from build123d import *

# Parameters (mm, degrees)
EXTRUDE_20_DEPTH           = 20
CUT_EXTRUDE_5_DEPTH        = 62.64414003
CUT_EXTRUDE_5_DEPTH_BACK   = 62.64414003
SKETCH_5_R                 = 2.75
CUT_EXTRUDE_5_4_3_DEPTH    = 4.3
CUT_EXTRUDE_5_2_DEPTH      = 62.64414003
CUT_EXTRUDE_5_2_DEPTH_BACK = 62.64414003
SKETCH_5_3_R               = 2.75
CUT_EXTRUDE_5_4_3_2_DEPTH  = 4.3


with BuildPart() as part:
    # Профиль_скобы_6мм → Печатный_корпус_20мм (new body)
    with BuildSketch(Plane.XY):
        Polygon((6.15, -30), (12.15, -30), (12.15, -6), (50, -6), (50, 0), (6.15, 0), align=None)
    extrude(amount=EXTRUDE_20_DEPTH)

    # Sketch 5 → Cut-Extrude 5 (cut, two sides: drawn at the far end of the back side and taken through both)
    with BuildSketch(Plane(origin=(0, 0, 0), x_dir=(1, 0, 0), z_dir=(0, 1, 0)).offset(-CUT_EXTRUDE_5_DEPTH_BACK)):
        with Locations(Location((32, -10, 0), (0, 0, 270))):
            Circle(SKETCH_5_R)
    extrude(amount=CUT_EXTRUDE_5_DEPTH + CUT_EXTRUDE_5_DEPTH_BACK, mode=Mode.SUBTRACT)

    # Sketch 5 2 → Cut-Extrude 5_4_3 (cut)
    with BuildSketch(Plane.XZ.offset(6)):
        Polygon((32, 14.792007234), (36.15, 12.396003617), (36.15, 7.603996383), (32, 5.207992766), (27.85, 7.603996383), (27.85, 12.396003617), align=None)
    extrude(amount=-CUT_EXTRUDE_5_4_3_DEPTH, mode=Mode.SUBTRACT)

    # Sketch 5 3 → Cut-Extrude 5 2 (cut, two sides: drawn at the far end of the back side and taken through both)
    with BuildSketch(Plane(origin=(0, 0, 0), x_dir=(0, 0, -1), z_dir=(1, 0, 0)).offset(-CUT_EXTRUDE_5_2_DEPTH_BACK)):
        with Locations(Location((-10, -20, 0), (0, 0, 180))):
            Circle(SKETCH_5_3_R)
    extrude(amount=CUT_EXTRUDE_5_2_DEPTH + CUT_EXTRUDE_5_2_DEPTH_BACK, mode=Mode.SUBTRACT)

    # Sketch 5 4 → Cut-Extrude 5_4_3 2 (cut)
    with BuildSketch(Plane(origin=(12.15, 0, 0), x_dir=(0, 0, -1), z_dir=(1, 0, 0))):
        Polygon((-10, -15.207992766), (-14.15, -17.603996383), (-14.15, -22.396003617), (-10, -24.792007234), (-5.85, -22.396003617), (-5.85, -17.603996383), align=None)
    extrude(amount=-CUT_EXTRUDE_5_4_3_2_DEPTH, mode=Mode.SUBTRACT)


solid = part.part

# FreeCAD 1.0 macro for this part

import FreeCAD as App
import Part
import Sketcher
Q = App.Units.Quantity

doc = App.newDocument("Part")
body = doc.addObject("PartDesign::Body", "Body")

# Sketch on XY plane
sketch1 = doc.addObject("Sketcher::SketchObject", "Sketch")
body.addObject(sketch1)
sketch1.AttachmentSupport = (doc.XY_Plane, [""])
sketch1.MapMode = "FlatFace"
sketch1.addGeometry(Part.LineSegment(App.Vector(6.15, -30, 0), App.Vector(12.15, -30, 0)), False)
sketch1.addGeometry(Part.LineSegment(App.Vector(12.15, -30, 0), App.Vector(12.15, -6, 0)), False)
sketch1.addGeometry(Part.LineSegment(App.Vector(12.15, -6, 0), App.Vector(50, -6, 0)), False)
sketch1.addGeometry(Part.LineSegment(App.Vector(50, -6, 0), App.Vector(50, 0, 0)), False)
sketch1.addGeometry(Part.LineSegment(App.Vector(50, 0, 0), App.Vector(6.15, 0, 0)), False)
sketch1.addGeometry(Part.LineSegment(App.Vector(6.15, 0, 0), App.Vector(6.15, -30, 0)), False)
sketch1.addConstraint(Sketcher.Constraint("Coincident", 0, 2, 1, 1))
sketch1.addConstraint(Sketcher.Constraint("Coincident", 1, 2, 2, 1))
sketch1.addConstraint(Sketcher.Constraint("Coincident", 2, 2, 3, 1))
sketch1.addConstraint(Sketcher.Constraint("Coincident", 3, 2, 4, 1))
sketch1.addConstraint(Sketcher.Constraint("Coincident", 4, 2, 5, 1))
sketch1.addConstraint(Sketcher.Constraint("Coincident", 5, 2, 0, 1))
sketch1.addConstraint(Sketcher.Constraint("Horizontal", 0))
sketch1.addConstraint(Sketcher.Constraint("Vertical", 1))
sketch1.addConstraint(Sketcher.Constraint("Horizontal", 2))
sketch1.addConstraint(Sketcher.Constraint("Vertical", 3))
sketch1.addConstraint(Sketcher.Constraint("Horizontal", 4))
sketch1.addConstraint(Sketcher.Constraint("Vertical", 5))
sketch1.addConstraint(Sketcher.Constraint("PointOnObject", 3, 2, -1))
sketch1.addConstraint(Sketcher.Constraint("Equal", 0, 3))
sketch1.addConstraint(Sketcher.Constraint("DistanceX", 0, 1, 0, 2, Q("6 mm")))
sketch1.addConstraint(Sketcher.Constraint("DistanceY", 1, 1, 1, 2, Q("24 mm")))
sketch1.addConstraint(Sketcher.Constraint("DistanceX", -1, 1, 2, 2, Q("50 mm")))
sketch1.addConstraint(Sketcher.Constraint("DistanceX", 2, 1, 2, 2, Q("37.85 mm")))
pad1 = doc.addObject("PartDesign::Pad", "Pad")
body.addObject(pad1)
pad1.Profile = sketch1
pad1.Length = 20

# Sketch on XZ plane
sketch2 = doc.addObject("Sketcher::SketchObject", "Sketch001")
body.addObject(sketch2)
sketch2.AttachmentSupport = (doc.XZ_Plane, [""])
sketch2.MapMode = "FlatFace"
sketch2.addGeometry(Part.Circle(App.Vector(32, 10, 0), App.Vector(0, 0, 1), 2.75), False)
sketch2.addConstraint(Sketcher.Constraint("Diameter", 0, Q("5.5 mm")))
sketch2.addConstraint(Sketcher.Constraint("DistanceX", -1, 1, 0, 3, Q("32 mm")))
sketch2.addConstraint(Sketcher.Constraint("DistanceY", -1, 1, 0, 3, Q("10 mm")))
pocket1 = doc.addObject("PartDesign::Pocket", "Pocket")
body.addObject(pocket1)
pocket1.Profile = sketch2
pocket1.Type = "ThroughAll"
pocket1.Midplane = True

# Sketch on XZ plane
sketch3 = doc.addObject("Sketcher::SketchObject", "Sketch002")
body.addObject(sketch3)
sketch3.AttachmentSupport = (doc.XZ_Plane, [""])
sketch3.MapMode = "FlatFace"
sketch3.AttachmentOffset = App.Placement(App.Vector(0, 0, 6), App.Rotation())
sketch3.addGeometry(Part.LineSegment(App.Vector(36.15, 12.396004, 0), App.Vector(32, 14.792007, 0)), False)
sketch3.addGeometry(Part.LineSegment(App.Vector(32, 14.792007, 0), App.Vector(27.85, 12.396004, 0)), False)
sketch3.addGeometry(Part.LineSegment(App.Vector(27.85, 12.396004, 0), App.Vector(27.85, 7.603996, 0)), False)
sketch3.addGeometry(Part.LineSegment(App.Vector(27.85, 7.603996, 0), App.Vector(32, 5.207993, 0)), False)
sketch3.addGeometry(Part.LineSegment(App.Vector(32, 5.207993, 0), App.Vector(36.15, 7.603996, 0)), False)
sketch3.addGeometry(Part.LineSegment(App.Vector(36.15, 7.603996, 0), App.Vector(36.15, 12.396004, 0)), False)
sketch3.addConstraint(Sketcher.Constraint("Coincident", 0, 2, 1, 1))
sketch3.addConstraint(Sketcher.Constraint("Coincident", 1, 2, 2, 1))
sketch3.addConstraint(Sketcher.Constraint("Coincident", 2, 2, 3, 1))
sketch3.addConstraint(Sketcher.Constraint("Coincident", 3, 2, 4, 1))
sketch3.addConstraint(Sketcher.Constraint("Coincident", 4, 2, 5, 1))
sketch3.addConstraint(Sketcher.Constraint("Coincident", 5, 2, 0, 1))
sketch3.addConstraint(Sketcher.Constraint("Vertical", 2))
sketch3.addConstraint(Sketcher.Constraint("Vertical", 5))
sketch3.addConstraint(Sketcher.Constraint("Parallel", 0, 3))
sketch3.addConstraint(Sketcher.Constraint("Parallel", 1, 4))
sketch3.addConstraint(Sketcher.Constraint("Horizontal", 2, 2, 4, 2))
sketch3.addConstraint(Sketcher.Constraint("Horizontal", 1, 2, 5, 2))
sketch3.addConstraint(Sketcher.Constraint("Vertical", 0, 2, 3, 2))
sketch3.addConstraint(Sketcher.Constraint("Angle", 0, Q("150 deg")))
sketch3.addConstraint(Sketcher.Constraint("DistanceX", -1, 1, 0, 2, Q("32 mm")))
sketch3.addConstraint(Sketcher.Constraint("DistanceX", 2, 2, 4, 2, Q("8.3 mm")))
sketch3.addConstraint(Sketcher.Constraint("DistanceY", 2, 2, 2, 1, Q("4.792007 mm")))
sketch3.addConstraint(Sketcher.Constraint("DistanceY", -1, 1, 0, 2, Q("14.792007 mm")))
pocket2 = doc.addObject("PartDesign::Pocket", "Pocket001")
body.addObject(pocket2)
pocket2.Profile = sketch3
pocket2.Length = 4.3

# Sketch on YZ plane
sketch4 = doc.addObject("Sketcher::SketchObject", "Sketch003")
body.addObject(sketch4)
sketch4.AttachmentSupport = (doc.YZ_Plane, [""])
sketch4.MapMode = "FlatFace"
sketch4.addGeometry(Part.Circle(App.Vector(-20, 10, 0), App.Vector(0, 0, 1), 2.75), False)
sketch4.addConstraint(Sketcher.Constraint("Diameter", 0, Q("5.5 mm")))
sketch4.addConstraint(Sketcher.Constraint("DistanceX", 0, 3, -1, 1, Q("20 mm")))
sketch4.addConstraint(Sketcher.Constraint("DistanceY", -1, 1, 0, 3, Q("10 mm")))
pocket3 = doc.addObject("PartDesign::Pocket", "Pocket002")
body.addObject(pocket3)
pocket3.Profile = sketch4
pocket3.Type = "ThroughAll"
pocket3.Midplane = True

# Sketch on YZ plane
sketch5 = doc.addObject("Sketcher::SketchObject", "Sketch004")
body.addObject(sketch5)
sketch5.AttachmentSupport = (doc.YZ_Plane, [""])
sketch5.MapMode = "FlatFace"
sketch5.AttachmentOffset = App.Placement(App.Vector(0, 0, 12.15), App.Rotation())
sketch5.addGeometry(Part.LineSegment(App.Vector(-15.207993, 10, 0), App.Vector(-17.603996, 14.15, 0)), False)
sketch5.addGeometry(Part.LineSegment(App.Vector(-17.603996, 14.15, 0), App.Vector(-22.396004, 14.15, 0)), False)
sketch5.addGeometry(Part.LineSegment(App.Vector(-22.396004, 14.15, 0), App.Vector(-24.792007, 10, 0)), False)
sketch5.addGeometry(Part.LineSegment(App.Vector(-24.792007, 10, 0), App.Vector(-22.396004, 5.85, 0)), False)
sketch5.addGeometry(Part.LineSegment(App.Vector(-22.396004, 5.85, 0), App.Vector(-17.603996, 5.85, 0)), False)
sketch5.addGeometry(Part.LineSegment(App.Vector(-17.603996, 5.85, 0), App.Vector(-15.207993, 10, 0)), False)
sketch5.addConstraint(Sketcher.Constraint("Coincident", 0, 2, 1, 1))
sketch5.addConstraint(Sketcher.Constraint("Coincident", 1, 2, 2, 1))
sketch5.addConstraint(Sketcher.Constraint("Coincident", 2, 2, 3, 1))
sketch5.addConstraint(Sketcher.Constraint("Coincident", 3, 2, 4, 1))
sketch5.addConstraint(Sketcher.Constraint("Coincident", 4, 2, 5, 1))
sketch5.addConstraint(Sketcher.Constraint("Coincident", 5, 2, 0, 1))
sketch5.addConstraint(Sketcher.Constraint("Horizontal", 1))
sketch5.addConstraint(Sketcher.Constraint("Horizontal", 4))
sketch5.addConstraint(Sketcher.Constraint("Parallel", 0, 3))
sketch5.addConstraint(Sketcher.Constraint("Parallel", 2, 5))
sketch5.addConstraint(Sketcher.Constraint("Horizontal", 2, 2, 5, 2))
sketch5.addConstraint(Sketcher.Constraint("Vertical", 1, 2, 3, 2))
sketch5.addConstraint(Sketcher.Constraint("Vertical", 0, 2, 4, 2))
sketch5.addConstraint(Sketcher.Constraint("Angle", 0, Q("120 deg")))
sketch5.addConstraint(Sketcher.Constraint("DistanceY", -1, 1, 2, 2, Q("10 mm")))
sketch5.addConstraint(Sketcher.Constraint("DistanceY", 3, 2, 1, 2, Q("8.3 mm")))
sketch5.addConstraint(Sketcher.Constraint("DistanceX", 1, 2, 1, 1, Q("4.792007 mm")))
sketch5.addConstraint(Sketcher.Constraint("DistanceX", 0, 2, -1, 1, Q("17.603996 mm")))
pocket4 = doc.addObject("PartDesign::Pocket", "Pocket003")
body.addObject(pocket4)
pocket4.Profile = sketch5
pocket4.Length = 4.3

doc.recompute()
